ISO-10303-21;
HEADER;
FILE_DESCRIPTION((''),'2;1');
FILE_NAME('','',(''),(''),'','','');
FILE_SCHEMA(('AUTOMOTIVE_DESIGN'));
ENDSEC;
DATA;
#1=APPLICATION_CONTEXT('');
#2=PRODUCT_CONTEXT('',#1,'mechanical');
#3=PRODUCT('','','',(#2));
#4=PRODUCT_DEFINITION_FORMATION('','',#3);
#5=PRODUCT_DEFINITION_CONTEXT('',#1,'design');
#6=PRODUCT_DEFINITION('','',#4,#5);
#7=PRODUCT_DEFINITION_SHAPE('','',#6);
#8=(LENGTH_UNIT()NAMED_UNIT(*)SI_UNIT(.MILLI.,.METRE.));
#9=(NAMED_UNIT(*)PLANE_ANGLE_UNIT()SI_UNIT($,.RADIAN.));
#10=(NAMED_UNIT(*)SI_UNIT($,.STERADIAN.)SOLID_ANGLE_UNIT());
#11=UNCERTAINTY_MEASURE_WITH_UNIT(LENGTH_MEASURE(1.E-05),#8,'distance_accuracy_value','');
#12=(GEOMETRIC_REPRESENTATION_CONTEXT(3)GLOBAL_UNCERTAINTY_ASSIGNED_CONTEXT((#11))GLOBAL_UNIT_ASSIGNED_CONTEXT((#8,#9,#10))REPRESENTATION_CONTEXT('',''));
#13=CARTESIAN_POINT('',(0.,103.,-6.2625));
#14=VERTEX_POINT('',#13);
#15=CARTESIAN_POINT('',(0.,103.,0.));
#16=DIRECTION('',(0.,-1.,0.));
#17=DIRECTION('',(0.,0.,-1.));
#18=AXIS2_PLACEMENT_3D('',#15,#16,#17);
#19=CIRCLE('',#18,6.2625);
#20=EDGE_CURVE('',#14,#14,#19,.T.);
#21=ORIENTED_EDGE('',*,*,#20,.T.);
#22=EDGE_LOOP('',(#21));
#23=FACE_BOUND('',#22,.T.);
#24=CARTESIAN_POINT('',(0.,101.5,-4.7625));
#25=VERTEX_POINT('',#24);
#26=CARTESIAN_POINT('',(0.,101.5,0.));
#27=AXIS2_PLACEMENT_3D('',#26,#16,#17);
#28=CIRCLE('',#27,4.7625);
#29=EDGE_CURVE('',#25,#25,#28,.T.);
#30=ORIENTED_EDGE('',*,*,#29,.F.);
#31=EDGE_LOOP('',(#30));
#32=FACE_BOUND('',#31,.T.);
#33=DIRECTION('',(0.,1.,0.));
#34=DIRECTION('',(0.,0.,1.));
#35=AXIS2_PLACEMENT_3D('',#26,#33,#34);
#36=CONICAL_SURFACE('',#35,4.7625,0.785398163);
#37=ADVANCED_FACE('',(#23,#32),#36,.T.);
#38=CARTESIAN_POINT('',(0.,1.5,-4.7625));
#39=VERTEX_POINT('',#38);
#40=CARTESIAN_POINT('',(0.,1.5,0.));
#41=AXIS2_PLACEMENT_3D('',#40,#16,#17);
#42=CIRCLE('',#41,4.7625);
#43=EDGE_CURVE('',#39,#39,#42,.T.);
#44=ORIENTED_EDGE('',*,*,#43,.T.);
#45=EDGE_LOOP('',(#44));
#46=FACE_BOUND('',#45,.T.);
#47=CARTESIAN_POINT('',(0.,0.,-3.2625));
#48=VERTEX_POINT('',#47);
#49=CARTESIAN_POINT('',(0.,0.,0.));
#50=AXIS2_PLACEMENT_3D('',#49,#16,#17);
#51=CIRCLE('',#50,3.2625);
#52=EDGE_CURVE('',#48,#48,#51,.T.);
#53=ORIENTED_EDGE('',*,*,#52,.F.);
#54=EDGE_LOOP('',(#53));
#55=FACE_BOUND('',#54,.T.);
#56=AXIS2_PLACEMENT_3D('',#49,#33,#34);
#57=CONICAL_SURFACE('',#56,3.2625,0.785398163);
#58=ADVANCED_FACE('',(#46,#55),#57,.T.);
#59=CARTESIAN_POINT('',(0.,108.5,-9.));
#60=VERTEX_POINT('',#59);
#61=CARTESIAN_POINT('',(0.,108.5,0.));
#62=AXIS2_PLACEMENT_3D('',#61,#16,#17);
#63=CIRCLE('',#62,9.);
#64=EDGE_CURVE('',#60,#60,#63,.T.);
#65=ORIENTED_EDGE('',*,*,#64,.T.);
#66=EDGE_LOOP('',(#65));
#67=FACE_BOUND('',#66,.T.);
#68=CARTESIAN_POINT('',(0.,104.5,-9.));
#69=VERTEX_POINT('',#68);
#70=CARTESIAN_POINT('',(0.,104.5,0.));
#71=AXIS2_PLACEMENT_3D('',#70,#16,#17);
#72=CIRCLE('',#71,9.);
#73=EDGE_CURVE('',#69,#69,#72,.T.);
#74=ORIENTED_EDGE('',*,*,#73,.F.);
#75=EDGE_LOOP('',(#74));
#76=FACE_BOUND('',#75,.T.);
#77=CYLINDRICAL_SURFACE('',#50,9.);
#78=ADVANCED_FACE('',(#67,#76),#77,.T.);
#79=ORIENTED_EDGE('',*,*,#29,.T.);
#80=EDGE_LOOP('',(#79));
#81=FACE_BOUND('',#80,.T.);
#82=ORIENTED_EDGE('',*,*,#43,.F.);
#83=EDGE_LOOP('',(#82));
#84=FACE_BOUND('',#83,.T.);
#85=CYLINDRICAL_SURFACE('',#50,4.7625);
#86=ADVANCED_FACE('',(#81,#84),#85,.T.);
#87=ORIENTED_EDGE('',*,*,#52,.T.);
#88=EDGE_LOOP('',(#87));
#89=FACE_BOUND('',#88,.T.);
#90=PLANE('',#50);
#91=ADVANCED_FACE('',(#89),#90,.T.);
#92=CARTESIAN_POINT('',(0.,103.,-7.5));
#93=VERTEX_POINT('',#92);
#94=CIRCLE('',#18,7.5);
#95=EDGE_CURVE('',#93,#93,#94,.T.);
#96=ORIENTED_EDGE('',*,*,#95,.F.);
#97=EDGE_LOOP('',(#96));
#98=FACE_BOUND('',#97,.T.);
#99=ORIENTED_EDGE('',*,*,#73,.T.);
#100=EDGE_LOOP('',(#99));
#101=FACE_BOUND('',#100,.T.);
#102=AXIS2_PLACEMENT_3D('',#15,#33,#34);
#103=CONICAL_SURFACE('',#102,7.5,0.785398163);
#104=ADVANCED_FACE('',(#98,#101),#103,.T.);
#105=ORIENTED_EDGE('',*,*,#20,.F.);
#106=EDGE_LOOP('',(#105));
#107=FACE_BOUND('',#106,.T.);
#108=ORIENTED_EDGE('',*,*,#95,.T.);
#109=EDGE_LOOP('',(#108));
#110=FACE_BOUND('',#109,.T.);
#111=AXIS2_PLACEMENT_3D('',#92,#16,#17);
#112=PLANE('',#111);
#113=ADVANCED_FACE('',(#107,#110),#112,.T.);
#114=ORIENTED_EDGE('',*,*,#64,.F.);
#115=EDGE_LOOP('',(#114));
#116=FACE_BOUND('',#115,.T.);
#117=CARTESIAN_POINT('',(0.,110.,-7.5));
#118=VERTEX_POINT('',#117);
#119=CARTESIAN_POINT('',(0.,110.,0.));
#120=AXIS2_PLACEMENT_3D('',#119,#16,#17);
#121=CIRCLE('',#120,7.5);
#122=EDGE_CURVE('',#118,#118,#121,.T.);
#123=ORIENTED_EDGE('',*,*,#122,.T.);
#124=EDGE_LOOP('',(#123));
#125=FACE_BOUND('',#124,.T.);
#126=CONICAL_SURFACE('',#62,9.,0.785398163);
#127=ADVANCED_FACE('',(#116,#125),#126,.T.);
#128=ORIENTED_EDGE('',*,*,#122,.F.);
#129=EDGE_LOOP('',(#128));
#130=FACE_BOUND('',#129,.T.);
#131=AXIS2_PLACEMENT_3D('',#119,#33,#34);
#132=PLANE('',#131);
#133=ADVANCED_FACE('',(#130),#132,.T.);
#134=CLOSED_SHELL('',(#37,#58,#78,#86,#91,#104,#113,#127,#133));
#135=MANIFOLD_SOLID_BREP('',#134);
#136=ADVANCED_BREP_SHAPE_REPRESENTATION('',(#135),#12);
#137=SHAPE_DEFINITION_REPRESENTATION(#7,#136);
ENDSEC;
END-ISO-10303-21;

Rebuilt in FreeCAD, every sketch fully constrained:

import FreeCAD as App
import Part
import Sketcher

V = App.Vector
Q = App.Units.Quantity


def add_polygon(sketch, points):
    """Adds a closed chain of lines whose ends are joined by coincident constraints."""
    first, n = sketch.GeometryCount, len(points)
    for a, b in zip(points, points[1:] + points[:1]):
        sketch.addGeometry(Part.LineSegment(App.Vector(*a, 0), App.Vector(*b, 0)), False)
    for i in range(n):
        sketch.addConstraint(Sketcher.Constraint("Coincident", first + i, 2, first + (i + 1) % n, 1))

doc = App.newDocument("Part")
body = doc.addObject("PartDesign::Body", "Body")

# Sketch on YZ plane
sketch1 = doc.addObject("Sketcher::SketchObject", "Sketch")
body.addObject(sketch1)
sketch1.AttachmentSupport = (doc.YZ_Plane, [""])
sketch1.MapMode = "FlatFace"
add_polygon(sketch1, [(0, 0), (0, -3.2625), (1.5, -4.7625), (101.5, -4.7625), (103, -6.2625), (103, -7.5), (104.5, -9), (108.5, -9), (110, -7.5), (110, 0)])  # lines 0-9
sketch1.addConstraint([
    Sketcher.Constraint("Vertical", 0),
    Sketcher.Constraint("Horizontal", 2),
    Sketcher.Constraint("Vertical", 4),
    Sketcher.Constraint("Horizontal", 6),
    Sketcher.Constraint("Vertical", 8),
    Sketcher.Constraint("Horizontal", 9),
    Sketcher.Constraint("Coincident", 9, 2, -1, 1),
    Sketcher.Constraint("Parallel", 1, 3),
    Sketcher.Constraint("Parallel", 3, 5),
    Sketcher.Constraint("Perpendicular", 5, 7),
    Sketcher.Constraint("Horizontal", 4, 2, 7, 2),
    Sketcher.Constraint("Equal", 1, 3),
    Sketcher.Constraint("Equal", 3, 5),
    Sketcher.Constraint("Equal", 5, 7),
    Sketcher.Constraint("DistanceX", 2, 1, 2, 2, Q("100 mm")),
    Sketcher.Constraint("DistanceX", 6, 1, 6, 2, Q("4 mm")),
    Sketcher.Constraint("DistanceX", 9, 2, 9, 1, Q("110 mm")),
    Sketcher.Constraint("DistanceY", 8, 1, 8, 2, Q("7.5 mm")),
    Sketcher.Constraint("DistanceY", 0, 2, 0, 1, Q("3.2625 mm")),
])
revolution = doc.addObject("PartDesign::Revolution", "Revolution")
body.addObject(revolution)
revolution.Profile = sketch1
revolution.ReferenceAxis = (sketch1, ["H_Axis"])
revolution.Angle = 360

doc.recompute()
